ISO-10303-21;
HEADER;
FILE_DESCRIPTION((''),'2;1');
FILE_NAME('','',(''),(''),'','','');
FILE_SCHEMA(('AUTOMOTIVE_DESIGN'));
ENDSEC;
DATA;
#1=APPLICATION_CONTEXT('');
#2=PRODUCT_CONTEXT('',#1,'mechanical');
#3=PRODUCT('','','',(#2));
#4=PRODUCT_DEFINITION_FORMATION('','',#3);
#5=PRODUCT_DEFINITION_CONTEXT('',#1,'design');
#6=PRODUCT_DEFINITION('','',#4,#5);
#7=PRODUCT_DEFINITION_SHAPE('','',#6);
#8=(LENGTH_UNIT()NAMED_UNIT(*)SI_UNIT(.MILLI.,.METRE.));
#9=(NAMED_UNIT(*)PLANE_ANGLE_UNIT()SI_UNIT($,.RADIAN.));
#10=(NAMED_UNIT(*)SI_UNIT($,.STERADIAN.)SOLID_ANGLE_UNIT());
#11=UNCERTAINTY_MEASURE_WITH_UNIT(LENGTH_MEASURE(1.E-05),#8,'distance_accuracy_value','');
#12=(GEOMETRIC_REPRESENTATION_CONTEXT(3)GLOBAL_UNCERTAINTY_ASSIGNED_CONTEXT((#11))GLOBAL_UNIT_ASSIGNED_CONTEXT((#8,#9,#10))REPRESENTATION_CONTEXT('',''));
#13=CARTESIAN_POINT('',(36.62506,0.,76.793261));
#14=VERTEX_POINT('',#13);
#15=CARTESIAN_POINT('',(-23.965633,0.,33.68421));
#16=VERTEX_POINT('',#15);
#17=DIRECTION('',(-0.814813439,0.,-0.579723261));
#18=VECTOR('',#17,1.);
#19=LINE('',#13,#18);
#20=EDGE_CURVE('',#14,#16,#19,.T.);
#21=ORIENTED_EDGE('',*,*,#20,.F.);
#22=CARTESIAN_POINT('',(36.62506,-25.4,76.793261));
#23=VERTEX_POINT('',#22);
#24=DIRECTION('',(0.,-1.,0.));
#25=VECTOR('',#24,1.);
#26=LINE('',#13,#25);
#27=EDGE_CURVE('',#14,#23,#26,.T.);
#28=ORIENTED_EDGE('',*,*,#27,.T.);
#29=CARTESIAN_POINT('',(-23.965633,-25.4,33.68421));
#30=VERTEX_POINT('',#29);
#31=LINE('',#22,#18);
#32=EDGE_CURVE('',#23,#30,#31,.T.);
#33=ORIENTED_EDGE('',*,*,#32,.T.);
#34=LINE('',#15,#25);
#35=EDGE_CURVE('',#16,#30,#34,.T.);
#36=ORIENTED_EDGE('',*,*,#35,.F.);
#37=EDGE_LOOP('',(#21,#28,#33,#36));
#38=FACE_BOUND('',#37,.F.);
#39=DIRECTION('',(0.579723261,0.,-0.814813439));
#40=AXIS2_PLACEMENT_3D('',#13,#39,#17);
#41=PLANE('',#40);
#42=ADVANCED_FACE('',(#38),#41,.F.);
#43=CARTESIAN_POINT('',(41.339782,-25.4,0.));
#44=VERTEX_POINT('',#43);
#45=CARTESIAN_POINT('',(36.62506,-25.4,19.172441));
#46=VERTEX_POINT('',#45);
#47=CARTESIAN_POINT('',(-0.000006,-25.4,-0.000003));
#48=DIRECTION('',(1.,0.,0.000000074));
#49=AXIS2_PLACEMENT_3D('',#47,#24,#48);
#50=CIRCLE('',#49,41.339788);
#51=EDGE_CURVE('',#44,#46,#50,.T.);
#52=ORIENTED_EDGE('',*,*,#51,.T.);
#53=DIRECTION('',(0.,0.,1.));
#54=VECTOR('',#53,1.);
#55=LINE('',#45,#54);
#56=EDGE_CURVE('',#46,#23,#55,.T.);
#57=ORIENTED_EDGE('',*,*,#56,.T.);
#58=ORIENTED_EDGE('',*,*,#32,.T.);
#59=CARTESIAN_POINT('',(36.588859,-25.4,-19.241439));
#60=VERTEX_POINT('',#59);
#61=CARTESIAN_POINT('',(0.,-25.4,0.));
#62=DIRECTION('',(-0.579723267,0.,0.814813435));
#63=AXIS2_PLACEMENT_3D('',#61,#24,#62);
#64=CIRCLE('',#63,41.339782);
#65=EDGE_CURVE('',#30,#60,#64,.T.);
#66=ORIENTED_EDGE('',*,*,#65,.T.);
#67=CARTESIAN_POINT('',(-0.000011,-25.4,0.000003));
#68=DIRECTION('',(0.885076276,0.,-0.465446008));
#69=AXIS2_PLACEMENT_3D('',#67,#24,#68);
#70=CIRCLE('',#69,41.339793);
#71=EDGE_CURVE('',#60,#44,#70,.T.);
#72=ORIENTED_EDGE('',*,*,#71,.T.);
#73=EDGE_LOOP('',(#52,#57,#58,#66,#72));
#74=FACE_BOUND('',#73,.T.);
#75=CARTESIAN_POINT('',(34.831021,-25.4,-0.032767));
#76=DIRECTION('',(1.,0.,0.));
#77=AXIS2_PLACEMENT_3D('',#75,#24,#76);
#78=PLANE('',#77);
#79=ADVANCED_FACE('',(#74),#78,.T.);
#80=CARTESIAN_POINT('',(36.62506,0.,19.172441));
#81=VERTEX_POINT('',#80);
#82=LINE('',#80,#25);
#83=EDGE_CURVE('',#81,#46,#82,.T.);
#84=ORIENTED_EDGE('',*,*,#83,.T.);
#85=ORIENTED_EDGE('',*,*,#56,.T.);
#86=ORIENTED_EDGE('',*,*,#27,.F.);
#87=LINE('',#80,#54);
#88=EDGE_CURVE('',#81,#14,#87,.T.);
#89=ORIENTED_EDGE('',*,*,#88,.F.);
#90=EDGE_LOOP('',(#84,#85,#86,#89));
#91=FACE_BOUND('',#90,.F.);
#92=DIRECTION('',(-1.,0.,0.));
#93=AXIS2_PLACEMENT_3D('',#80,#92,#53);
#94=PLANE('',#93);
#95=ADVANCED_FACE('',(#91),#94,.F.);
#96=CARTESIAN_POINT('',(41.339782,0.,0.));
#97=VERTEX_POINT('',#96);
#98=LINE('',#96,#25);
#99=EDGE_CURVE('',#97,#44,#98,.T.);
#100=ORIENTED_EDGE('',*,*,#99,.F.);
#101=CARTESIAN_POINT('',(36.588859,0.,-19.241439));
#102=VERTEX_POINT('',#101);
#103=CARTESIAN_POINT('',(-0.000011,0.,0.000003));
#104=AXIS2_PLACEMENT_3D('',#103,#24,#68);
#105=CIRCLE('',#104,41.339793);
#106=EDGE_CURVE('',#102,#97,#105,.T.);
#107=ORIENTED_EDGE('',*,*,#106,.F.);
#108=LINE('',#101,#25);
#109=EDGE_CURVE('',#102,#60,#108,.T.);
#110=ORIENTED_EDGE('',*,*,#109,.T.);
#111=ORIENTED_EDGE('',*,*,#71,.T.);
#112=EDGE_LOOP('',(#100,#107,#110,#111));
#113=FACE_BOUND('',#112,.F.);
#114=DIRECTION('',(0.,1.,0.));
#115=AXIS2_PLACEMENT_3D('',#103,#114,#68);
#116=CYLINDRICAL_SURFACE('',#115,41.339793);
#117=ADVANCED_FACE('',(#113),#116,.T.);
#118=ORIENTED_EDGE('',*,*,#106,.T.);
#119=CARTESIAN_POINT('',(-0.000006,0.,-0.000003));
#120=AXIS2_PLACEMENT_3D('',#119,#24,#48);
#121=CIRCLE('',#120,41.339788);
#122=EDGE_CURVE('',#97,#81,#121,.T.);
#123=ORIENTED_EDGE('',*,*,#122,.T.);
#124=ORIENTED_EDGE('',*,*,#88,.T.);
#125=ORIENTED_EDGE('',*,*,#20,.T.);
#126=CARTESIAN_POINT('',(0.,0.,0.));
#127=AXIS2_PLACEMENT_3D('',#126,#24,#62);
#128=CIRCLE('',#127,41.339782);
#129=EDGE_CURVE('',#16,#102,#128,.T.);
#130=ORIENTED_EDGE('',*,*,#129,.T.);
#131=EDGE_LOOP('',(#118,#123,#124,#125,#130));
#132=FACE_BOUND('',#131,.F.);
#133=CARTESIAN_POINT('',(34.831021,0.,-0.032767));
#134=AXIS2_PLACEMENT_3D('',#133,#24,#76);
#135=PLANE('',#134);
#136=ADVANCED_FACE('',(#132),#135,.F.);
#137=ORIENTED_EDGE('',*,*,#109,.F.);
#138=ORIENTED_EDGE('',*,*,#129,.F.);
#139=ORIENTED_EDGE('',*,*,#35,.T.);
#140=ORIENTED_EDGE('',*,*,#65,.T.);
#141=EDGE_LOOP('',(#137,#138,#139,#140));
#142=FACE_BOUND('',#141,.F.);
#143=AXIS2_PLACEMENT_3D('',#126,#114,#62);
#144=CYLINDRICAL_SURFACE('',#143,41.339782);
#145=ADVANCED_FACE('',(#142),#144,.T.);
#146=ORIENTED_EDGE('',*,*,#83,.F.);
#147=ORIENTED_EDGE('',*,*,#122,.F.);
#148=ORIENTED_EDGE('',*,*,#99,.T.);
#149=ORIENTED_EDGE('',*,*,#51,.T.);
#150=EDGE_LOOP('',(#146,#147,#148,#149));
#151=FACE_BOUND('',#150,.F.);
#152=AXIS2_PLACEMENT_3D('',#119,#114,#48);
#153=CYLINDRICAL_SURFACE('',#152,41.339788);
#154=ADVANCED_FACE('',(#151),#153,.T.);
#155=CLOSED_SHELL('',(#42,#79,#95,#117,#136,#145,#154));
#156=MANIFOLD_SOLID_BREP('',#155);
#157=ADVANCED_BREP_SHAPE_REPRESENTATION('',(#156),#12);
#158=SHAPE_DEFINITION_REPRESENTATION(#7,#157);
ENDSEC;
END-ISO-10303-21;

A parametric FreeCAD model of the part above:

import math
import FreeCAD as App
import Part
import Sketcher

V = App.Vector
Q = App.Units.Quantity

doc = App.newDocument("Part")
body = doc.addObject("PartDesign::Body", "Body")

# Sketch on XZ plane
sketch1 = body.newObject("Sketcher::SketchObject", "Sketch")
sketch1.AttachmentSupport = (doc.getObject("XZ_Plane"), [""])
sketch1.MapMode = "FlatFace"
sketch1.addGeometry(Part.ArcOfCircle(Part.Circle(V(49, 0, 0), V(0, 0, 1), 23), math.radians(123), math.radians(237)), False)
sketch1.addGeometry(Part.ArcOfCircle(Part.Circle(V(0, 0, 0), V(0, 0, 1), 41), math.radians(28), math.radians(125)), False)
sketch1.addGeometry(Part.ArcOfCircle(Part.Circle(V(0, 0, 0), V(0, 0, 1), 41), math.radians(125), math.radians(332)), False)
sketch1.addConstraint(Sketcher.Constraint("Coincident", 0, 1, 1, 1))
sketch1.addConstraint(Sketcher.Constraint("Tangent", 1, 2, 2, 1))
sketch1.addConstraint(Sketcher.Constraint("Coincident", 2, 2, 0, 2))
sketch1.addConstraint(Sketcher.Constraint("Coincident", 1, 3, -1, 1))
sketch1.addConstraint(Sketcher.Constraint("Equal", 1, 2))
sketch1.addConstraint(Sketcher.Constraint("Radius", 1, 41.339782))
sketch1.addConstraint(Sketcher.Constraint("Radius", 0, 22.960307))
sketch1.addConstraint(Sketcher.Constraint("DistanceX", 2, 2, 0, 1, 0.036201))
sketch1.addConstraint(Sketcher.Constraint("DistanceX", -1, 1, 0, 1, 36.62506))
sketch1.addConstraint(Sketcher.Constraint("DistanceY", -1, 1, 1, 2, 33.68421))
pad1 = body.newObject("PartDesign::Pad", "Pad")
pad1.Profile = sketch1
pad1.Length = Q("1 in")

# Sketch on XZ plane
sketch2 = body.newObject("Sketcher::SketchObject", "Sketch001")
sketch2.AttachmentSupport = (doc.getObject("XZ_Plane"), [""])
sketch2.MapMode = "FlatFace"
sketch2.addGeometry(Part.ArcOfCircle(Part.Circle(V(0, 0, 0), V(0, 0, 1), 41), math.radians(-28), math.radians(0)), False)
sketch2.addGeometry(Part.ArcOfCircle(Part.Circle(V(0, 0, 0), V(0, 0, 1), 41), math.radians(0), math.radians(28)), False)
sketch2.addGeometry(Part.LineSegment(V(37, 19, 0), V(37, 77, 0)), False)
sketch2.addGeometry(Part.LineSegment(V(37, 77, 0), V(-24, 34, 0)), False)
sketch2.addGeometry(Part.ArcOfCircle(Part.Circle(V(0, 0, 0), V(0, 0, 1), 41), math.radians(125), math.radians(332)), False)
sketch2.addConstraint(Sketcher.Constraint("Tangent", 0, 2, 1, 1))
sketch2.addConstraint(Sketcher.Constraint("Coincident", 1, 2, 2, 1))
sketch2.addConstraint(Sketcher.Constraint("Coincident", 2, 2, 3, 1))
sketch2.addConstraint(Sketcher.Constraint("Tangent", 3, 2, 4, 1))
sketch2.addConstraint(Sketcher.Constraint("Tangent", 4, 2, 0, 1))
sketch2.addConstraint(Sketcher.Constraint("Vertical", 2))
sketch2.addConstraint(Sketcher.Constraint("Coincident", 1, 3, -1, 1))
sketch2.addConstraint(Sketcher.Constraint("Coincident", 4, 3, -1, 1))
sketch2.addConstraint(Sketcher.Constraint("PointOnObject", 0, 2, -1))
sketch2.addConstraint(Sketcher.Constraint("Radius", 4, 41.339782))
sketch2.addConstraint(Sketcher.Constraint("DistanceY", 2, 1, 2, 2, 57.62082))
sketch2.addConstraint(Sketcher.Constraint("DistanceX", 4, 2, 1, 2, 0.036201))
sketch2.addConstraint(Sketcher.Constraint("Distance", 3, 74.361431))
pad2 = body.newObject("PartDesign::Pad", "Pad001")
pad2.Profile = sketch2
pad2.Length = Q("1 in")

doc.recompute()
